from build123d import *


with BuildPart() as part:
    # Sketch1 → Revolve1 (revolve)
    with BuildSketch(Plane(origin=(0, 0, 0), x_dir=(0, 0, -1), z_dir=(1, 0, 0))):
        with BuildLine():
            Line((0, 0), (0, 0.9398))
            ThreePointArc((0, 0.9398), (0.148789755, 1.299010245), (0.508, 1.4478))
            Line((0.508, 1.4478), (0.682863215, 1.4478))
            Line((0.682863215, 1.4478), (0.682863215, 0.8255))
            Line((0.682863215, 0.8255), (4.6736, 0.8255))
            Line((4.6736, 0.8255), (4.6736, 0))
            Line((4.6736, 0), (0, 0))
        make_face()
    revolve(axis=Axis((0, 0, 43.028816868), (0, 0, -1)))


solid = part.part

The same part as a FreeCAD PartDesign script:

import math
import FreeCAD as App
import Part
import Sketcher
Q = App.Units.Quantity

doc = App.newDocument("Part")
body = doc.addObject("PartDesign::Body", "Body")

sketch1 = body.newObject("Sketcher::SketchObject", "Sketch")
sketch1.AttachmentSupport = (doc.getObject("YZ_Plane"), [""])
sketch1.MapMode = "FlatFace"
sketch1.addGeometry(Part.LineSegment(App.Vector(0.94, 0, 0), App.Vector(0, 0, 0)), False)
sketch1.addGeometry(Part.LineSegment(App.Vector(0, 0, 0), App.Vector(0, -4.67, 0)), False)
sketch1.addGeometry(Part.LineSegment(App.Vector(0, -4.67, 0), App.Vector(0.83, -4.67, 0)), False)
sketch1.addGeometry(Part.LineSegment(App.Vector(0.83, -4.67, 0), App.Vector(0.83, -0.68, 0)), False)
sketch1.addGeometry(Part.LineSegment(App.Vector(0.83, -0.68, 0), App.Vector(1.45, -0.68, 0)), False)
sketch1.addGeometry(Part.LineSegment(App.Vector(1.45, -0.68, 0), App.Vector(1.45, -0.51, 0)), False)
sketch1.addGeometry(Part.ArcOfCircle(Part.Circle(App.Vector(0.94, -0.51, 0), App.Vector(0, 0, 1), 0.51), math.radians(0), math.radians(90)), False)
sketch1.addConstraint(Sketcher.Constraint("Coincident", 0, 2, 1, 1))
sketch1.addConstraint(Sketcher.Constraint("Coincident", 1, 2, 2, 1))
sketch1.addConstraint(Sketcher.Constraint("Coincident", 2, 2, 3, 1))
sketch1.addConstraint(Sketcher.Constraint("Coincident", 3, 2, 4, 1))
sketch1.addConstraint(Sketcher.Constraint("Coincident", 4, 2, 5, 1))
sketch1.addConstraint(Sketcher.Constraint("Tangent", 5, 2, 6, 1))
sketch1.addConstraint(Sketcher.Constraint("Tangent", 6, 2, 0, 1))
sketch1.addConstraint(Sketcher.Constraint("Horizontal", 0))
sketch1.addConstraint(Sketcher.Constraint("Vertical", 1))
sketch1.addConstraint(Sketcher.Constraint("Horizontal", 2))
sketch1.addConstraint(Sketcher.Constraint("Vertical", 3))
sketch1.addConstraint(Sketcher.Constraint("Horizontal", 4))
sketch1.addConstraint(Sketcher.Constraint("Vertical", 5))
sketch1.addConstraint(Sketcher.Constraint("Coincident", 0, 2, -1, 1))
sketch1.addConstraint(Sketcher.Constraint("Radius", 6, Q("0.02 in")))
sketch1.addConstraint(Sketcher.Constraint("DistanceX", 0, 2, 0, 1, Q("0.037 in")))
sketch1.addConstraint(Sketcher.Constraint("DistanceY", 1, 2, 1, 1, Q("0.184 in")))
sketch1.addConstraint(Sketcher.Constraint("DistanceX", 2, 1, 2, 2, Q("0.0325 in")))
sketch1.addConstraint(Sketcher.Constraint("DistanceY", 3, 1, 3, 2, 3.990737))
revolution = body.newObject("PartDesign::Revolution", "Revolution")
revolution.Profile = sketch1
revolution.ReferenceAxis = (sketch1, ["V_Axis"])
revolution.Angle = 360

doc.recompute()
